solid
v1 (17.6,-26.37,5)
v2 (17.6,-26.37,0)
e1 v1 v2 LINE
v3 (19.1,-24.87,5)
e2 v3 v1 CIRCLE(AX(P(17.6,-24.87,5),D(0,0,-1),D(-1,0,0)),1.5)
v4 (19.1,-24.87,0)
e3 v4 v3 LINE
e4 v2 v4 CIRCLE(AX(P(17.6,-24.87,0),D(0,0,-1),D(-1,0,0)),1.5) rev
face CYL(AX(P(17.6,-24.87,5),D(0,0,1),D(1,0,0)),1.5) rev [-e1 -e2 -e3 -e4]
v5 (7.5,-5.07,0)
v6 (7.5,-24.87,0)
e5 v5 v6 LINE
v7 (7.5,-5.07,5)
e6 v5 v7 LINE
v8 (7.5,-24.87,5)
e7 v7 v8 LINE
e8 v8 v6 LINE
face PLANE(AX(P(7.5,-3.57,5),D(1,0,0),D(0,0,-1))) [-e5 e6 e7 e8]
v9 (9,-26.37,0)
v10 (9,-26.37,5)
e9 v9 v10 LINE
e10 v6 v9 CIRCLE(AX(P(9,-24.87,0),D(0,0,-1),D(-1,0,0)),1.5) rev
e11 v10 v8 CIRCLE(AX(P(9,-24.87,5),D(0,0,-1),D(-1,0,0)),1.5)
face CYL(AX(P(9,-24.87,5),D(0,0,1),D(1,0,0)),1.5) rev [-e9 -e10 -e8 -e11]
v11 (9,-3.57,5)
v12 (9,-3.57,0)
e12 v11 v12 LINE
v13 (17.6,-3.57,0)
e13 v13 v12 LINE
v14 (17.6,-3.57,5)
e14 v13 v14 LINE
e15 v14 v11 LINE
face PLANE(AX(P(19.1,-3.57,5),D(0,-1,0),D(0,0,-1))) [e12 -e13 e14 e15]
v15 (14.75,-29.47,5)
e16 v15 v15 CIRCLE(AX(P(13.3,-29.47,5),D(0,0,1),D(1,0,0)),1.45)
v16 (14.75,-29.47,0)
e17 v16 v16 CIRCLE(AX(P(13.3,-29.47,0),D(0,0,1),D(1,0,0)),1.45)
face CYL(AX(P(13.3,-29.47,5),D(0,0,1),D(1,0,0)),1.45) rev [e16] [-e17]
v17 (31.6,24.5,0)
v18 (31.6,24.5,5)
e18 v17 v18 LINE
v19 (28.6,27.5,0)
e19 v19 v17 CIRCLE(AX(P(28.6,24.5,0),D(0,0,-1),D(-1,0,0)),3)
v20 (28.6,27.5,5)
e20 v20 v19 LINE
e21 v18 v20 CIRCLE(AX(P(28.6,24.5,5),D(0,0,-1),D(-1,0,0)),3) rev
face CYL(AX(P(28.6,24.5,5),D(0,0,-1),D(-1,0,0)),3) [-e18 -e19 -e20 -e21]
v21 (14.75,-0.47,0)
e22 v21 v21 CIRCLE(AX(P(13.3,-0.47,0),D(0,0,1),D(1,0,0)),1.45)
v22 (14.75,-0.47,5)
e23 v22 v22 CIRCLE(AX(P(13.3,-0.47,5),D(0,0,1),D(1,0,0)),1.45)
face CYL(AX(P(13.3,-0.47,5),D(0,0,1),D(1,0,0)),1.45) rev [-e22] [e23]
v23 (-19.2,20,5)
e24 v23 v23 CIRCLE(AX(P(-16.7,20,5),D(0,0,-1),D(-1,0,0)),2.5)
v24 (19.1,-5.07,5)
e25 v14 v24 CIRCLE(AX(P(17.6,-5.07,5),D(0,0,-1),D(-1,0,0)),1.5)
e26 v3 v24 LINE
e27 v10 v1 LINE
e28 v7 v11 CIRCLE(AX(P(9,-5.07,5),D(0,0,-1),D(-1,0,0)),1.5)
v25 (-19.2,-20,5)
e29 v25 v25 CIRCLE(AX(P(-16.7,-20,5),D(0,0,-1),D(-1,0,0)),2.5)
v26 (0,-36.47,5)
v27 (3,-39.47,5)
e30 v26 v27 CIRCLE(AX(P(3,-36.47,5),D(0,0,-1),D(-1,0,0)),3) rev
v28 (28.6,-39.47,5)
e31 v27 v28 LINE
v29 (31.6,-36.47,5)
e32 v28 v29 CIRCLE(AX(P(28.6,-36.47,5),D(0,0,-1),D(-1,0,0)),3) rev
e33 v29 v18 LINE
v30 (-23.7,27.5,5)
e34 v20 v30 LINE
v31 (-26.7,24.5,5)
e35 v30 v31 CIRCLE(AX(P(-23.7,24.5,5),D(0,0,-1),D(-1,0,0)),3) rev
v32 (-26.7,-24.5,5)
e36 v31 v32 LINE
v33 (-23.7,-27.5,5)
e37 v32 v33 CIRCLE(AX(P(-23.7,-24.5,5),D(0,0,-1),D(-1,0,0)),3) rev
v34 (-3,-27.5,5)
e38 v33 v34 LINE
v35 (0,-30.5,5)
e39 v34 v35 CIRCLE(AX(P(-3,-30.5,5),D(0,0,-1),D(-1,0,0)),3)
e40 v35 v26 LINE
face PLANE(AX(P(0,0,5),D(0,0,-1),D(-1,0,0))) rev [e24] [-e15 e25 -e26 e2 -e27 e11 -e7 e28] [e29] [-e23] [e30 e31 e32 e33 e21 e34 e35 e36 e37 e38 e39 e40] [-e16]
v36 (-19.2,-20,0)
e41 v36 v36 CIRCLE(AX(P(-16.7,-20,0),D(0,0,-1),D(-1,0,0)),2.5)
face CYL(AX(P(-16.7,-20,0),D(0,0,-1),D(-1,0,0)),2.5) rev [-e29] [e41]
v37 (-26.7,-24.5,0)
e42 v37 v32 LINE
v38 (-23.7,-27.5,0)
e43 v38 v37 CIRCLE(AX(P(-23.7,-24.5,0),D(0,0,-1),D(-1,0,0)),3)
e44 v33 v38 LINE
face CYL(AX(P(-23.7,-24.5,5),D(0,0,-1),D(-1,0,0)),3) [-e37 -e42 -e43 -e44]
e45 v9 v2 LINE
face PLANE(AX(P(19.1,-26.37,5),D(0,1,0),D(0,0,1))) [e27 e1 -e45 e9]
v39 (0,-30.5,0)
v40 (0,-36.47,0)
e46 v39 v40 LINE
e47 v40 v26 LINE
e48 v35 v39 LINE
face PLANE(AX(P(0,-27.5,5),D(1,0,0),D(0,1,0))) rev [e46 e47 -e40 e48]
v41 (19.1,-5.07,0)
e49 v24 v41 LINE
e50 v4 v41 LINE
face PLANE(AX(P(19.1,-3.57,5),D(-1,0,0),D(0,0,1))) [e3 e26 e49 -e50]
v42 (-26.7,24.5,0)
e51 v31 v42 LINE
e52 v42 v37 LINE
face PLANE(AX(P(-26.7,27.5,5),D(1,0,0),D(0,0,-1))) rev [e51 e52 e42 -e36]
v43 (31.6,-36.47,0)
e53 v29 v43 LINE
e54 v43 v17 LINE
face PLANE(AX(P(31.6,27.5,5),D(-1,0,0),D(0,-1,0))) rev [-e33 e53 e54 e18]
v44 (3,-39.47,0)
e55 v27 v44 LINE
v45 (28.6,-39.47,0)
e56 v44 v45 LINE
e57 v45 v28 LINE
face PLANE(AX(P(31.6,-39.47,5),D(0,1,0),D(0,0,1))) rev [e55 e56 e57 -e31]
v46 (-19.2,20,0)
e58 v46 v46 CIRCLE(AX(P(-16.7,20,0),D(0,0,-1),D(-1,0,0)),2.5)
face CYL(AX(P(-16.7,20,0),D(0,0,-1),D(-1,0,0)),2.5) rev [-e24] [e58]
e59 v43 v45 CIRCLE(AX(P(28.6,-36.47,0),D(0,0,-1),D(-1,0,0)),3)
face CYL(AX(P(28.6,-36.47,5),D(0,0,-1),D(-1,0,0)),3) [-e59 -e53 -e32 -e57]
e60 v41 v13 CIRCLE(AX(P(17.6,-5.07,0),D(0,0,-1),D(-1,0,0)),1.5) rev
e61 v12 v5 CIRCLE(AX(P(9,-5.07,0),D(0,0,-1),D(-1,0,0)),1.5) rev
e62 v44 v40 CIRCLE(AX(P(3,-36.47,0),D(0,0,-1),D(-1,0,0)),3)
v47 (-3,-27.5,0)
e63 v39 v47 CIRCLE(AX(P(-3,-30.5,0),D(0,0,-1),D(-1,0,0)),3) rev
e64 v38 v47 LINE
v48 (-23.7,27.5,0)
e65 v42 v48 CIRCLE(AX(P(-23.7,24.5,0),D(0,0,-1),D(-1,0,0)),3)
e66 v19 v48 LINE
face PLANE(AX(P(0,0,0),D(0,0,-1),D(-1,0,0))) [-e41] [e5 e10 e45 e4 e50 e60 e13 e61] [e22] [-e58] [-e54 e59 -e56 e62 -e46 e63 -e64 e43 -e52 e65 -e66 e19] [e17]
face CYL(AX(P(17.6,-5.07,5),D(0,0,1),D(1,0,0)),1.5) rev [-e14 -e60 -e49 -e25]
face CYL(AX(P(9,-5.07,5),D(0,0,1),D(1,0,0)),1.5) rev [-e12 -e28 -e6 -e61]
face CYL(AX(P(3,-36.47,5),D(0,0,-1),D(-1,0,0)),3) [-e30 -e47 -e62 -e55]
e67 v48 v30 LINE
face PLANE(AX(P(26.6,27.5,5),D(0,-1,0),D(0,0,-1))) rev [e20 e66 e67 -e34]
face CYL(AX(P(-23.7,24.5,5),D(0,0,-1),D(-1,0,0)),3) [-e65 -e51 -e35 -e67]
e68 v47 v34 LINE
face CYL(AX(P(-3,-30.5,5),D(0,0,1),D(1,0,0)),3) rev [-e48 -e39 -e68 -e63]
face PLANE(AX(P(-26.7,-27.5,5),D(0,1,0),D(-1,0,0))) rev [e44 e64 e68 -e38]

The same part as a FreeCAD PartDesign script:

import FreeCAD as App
import Part
import Sketcher

V = App.Vector
Q = App.Units.Quantity


def edges_at(feature, points):
    """Names of the edges that pass closest to the given points."""
    edges = feature.Shape.Edges
    near = lambda p: min(range(len(edges)), key=lambda i: edges[i].distToShape(Part.Vertex(*p))[0])
    return sorted({f"Edge{near(p) + 1}" for p in points})

doc = App.newDocument("Part")
params = doc.addObject("Spreadsheet::Sheet", "Params")
for row, (alias, value) in enumerate([
    ("sketch1_height", "55 mm"),
    ("sketch1_width", "26.7 mm"),
    ("sketch1_width2", "31.6 mm"),
    ("sketch1_width3", "11.6 mm"),
    ("sketch1_height2", "22.8 mm"),
    ("pad1_length", "5 mm"),
    ("sketch2_diameter", "5 mm"),
    ("hole_diameter", "5 mm"),
    ("sketch3_diameter", "2.9 mm"),
    ("hole2_diameter", "2.9 mm"),
    ("fillet_radius", "3 mm"),
    ("fillet2_radius", "1.5 mm"),
], start=1):
    params.set(f"A{row}", alias)
    params.set(f"B{row}", "=" + value)
    params.setAlias(f"B{row}", alias)

body = doc.addObject("PartDesign::Body", "Body")

# Sketch on XY plane
sketch1 = doc.addObject("Sketcher::SketchObject", "Sketch")
body.addObject(sketch1)
sketch1.AttachmentSupport = (doc.XY_Plane, [""])
sketch1.MapMode = "FlatFace"
sketch1.addGeometry(Part.LineSegment(V(-27, 28, 0), V(-27, -28, 0)), False)
sketch1.addGeometry(Part.LineSegment(V(-27, -28, 0), V(0, -28, 0)), False)
sketch1.addGeometry(Part.LineSegment(V(0, -28, 0), V(0, -39, 0)), False)
sketch1.addGeometry(Part.LineSegment(V(0, -39, 0), V(32, -39, 0)), False)
sketch1.addGeometry(Part.LineSegment(V(32, -39, 0), V(32, 28, 0)), False)
sketch1.addGeometry(Part.LineSegment(V(32, 28, 0), V(-27, 28, 0)), False)
sketch1.addGeometry(Part.LineSegment(V(19, -26, 0), V(8, -26, 0)), False)
sketch1.addGeometry(Part.LineSegment(V(8, -26, 0), V(8, -4, 0)), False)
sketch1.addGeometry(Part.LineSegment(V(8, -4, 0), V(19, -4, 0)), False)
sketch1.addGeometry(Part.LineSegment(V(19, -4, 0), V(19, -26, 0)), False)
sketch1.addConstraint(Sketcher.Constraint("Coincident", 0, 2, 1, 1))
sketch1.addConstraint(Sketcher.Constraint("Coincident", 1, 2, 2, 1))
sketch1.addConstraint(Sketcher.Constraint("Coincident", 2, 2, 3, 1))
sketch1.addConstraint(Sketcher.Constraint("Coincident", 3, 2, 4, 1))
sketch1.addConstraint(Sketcher.Constraint("Coincident", 4, 2, 5, 1))
sketch1.addConstraint(Sketcher.Constraint("Coincident", 5, 2, 0, 1))
sketch1.addConstraint(Sketcher.Constraint("Coincident", 6, 2, 7, 1))
sketch1.addConstraint(Sketcher.Constraint("Coincident", 7, 2, 8, 1))
sketch1.addConstraint(Sketcher.Constraint("Coincident", 8, 2, 9, 1))
sketch1.addConstraint(Sketcher.Constraint("Coincident", 9, 2, 6, 1))
sketch1.addConstraint(Sketcher.Constraint("Vertical", 0))
sketch1.addConstraint(Sketcher.Constraint("Horizontal", 1))
sketch1.addConstraint(Sketcher.Constraint("Vertical", 2))
sketch1.addConstraint(Sketcher.Constraint("Horizontal", 3))
sketch1.addConstraint(Sketcher.Constraint("Vertical", 4))
sketch1.addConstraint(Sketcher.Constraint("Horizontal", 5))
sketch1.addConstraint(Sketcher.Constraint("Horizontal", 6))
sketch1.addConstraint(Sketcher.Constraint("Vertical", 7))
sketch1.addConstraint(Sketcher.Constraint("Horizontal", 8))
sketch1.addConstraint(Sketcher.Constraint("Vertical", 9))
sketch1.addConstraint(Sketcher.Constraint("PointOnObject", 1, 2, -2))
sketch1.addConstraint(Sketcher.Constraint("DistanceY", 0, 2, 0, 1, Q("55 mm")))
sketch1.addConstraint(Sketcher.Constraint("DistanceX", 1, 1, 1, 2, Q("26.7 mm")))
sketch1.addConstraint(Sketcher.Constraint("DistanceX", 3, 1, 3, 2, Q("31.6 mm")))
sketch1.addConstraint(Sketcher.Constraint("DistanceX", 6, 2, 6, 1, Q("11.6 mm")))
sketch1.addConstraint(Sketcher.Constraint("DistanceY", 7, 1, 7, 2, Q("22.8 mm")))
sketch1.addConstraint(Sketcher.Constraint("DistanceY", 2, 2, 2, 1, Q("11.97 mm")))
sketch1.addConstraint(Sketcher.Constraint("DistanceY", 0, 2, -1, 1, Q("27.5 mm")))
sketch1.addConstraint(Sketcher.Constraint("DistanceX", -1, 1, 6, 2, Q("7.5 mm")))
sketch1.addConstraint(Sketcher.Constraint("DistanceY", 2, 2, 6, 2, Q("13.1 mm")))
sketch1.setExpression("Constraints[21]", "Params.sketch1_height")
sketch1.setExpression("Constraints[22]", "Params.sketch1_width")
sketch1.setExpression("Constraints[23]", "Params.sketch1_width2")
sketch1.setExpression("Constraints[24]", "Params.sketch1_width3")
sketch1.setExpression("Constraints[25]", "Params.sketch1_height2")
pad1 = doc.addObject("PartDesign::Pad", "Pad")
body.addObject(pad1)
pad1.Profile = sketch1
pad1.setExpression("Length", "Params.pad1_length")

# Sketch on XY plane
sketch2 = doc.addObject("Sketcher::SketchObject", "Sketch001")
body.addObject(sketch2)
sketch2.AttachmentSupport = (doc.XY_Plane, [""])
sketch2.MapMode = "FlatFace"
sketch2.addGeometry(Part.Circle(V(-16.7, -20, 0), V(0, 0, 1), 2.5), False)
sketch2.addGeometry(Part.Circle(V(-16.7, 20, 0), V(0, 0, 1), 2.5), False)
sketch2.addConstraint(Sketcher.Constraint("Equal", 0, 1))
sketch2.addConstraint(Sketcher.Constraint("Symmetric", 0, 3, 1, 3, -1))
sketch2.addConstraint(Sketcher.Constraint("Diameter", 0, Q("5 mm")))
sketch2.addConstraint(Sketcher.Constraint("DistanceY", 0, 3, -1, 1, Q("20 mm")))
sketch2.addConstraint(Sketcher.Constraint("DistanceX", 0, 3, -1, 1, Q("16.7 mm")))
sketch2.setExpression("Constraints[2]", "Params.sketch2_diameter")
doc.recompute()
hole = doc.addObject("PartDesign::Hole", "Hole")
body.addObject(hole)
hole.Profile = sketch2
hole.ThreadType = "None"
hole.setExpression("Diameter", "Params.hole_diameter")
hole.DepthType = "ThroughAll"
hole.Reversed = True

# Sketch on XY plane
sketch3 = doc.addObject("Sketcher::SketchObject", "Sketch002")
body.addObject(sketch3)
sketch3.AttachmentSupport = (doc.XY_Plane, [""])
sketch3.MapMode = "FlatFace"
sketch3.AttachmentOffset = App.Placement(V(0, 0, 5), App.Rotation())
sketch3.addGeometry(Part.Circle(V(13.3, -0.5, 0), V(0, 0, 1), 1.4), False)
sketch3.addGeometry(Part.Circle(V(13.3, -29.5, 0), V(0, 0, 1), 1.4), False)
sketch3.addConstraint(Sketcher.Constraint("Equal", 0, 1))
sketch3.addConstraint(Sketcher.Constraint("Vertical", 0, 3, 1, 3))
sketch3.addConstraint(Sketcher.Constraint("Diameter", 0, Q("2.9 mm")))
sketch3.addConstraint(Sketcher.Constraint("DistanceY", 1, 3, 0, 3, Q("29 mm")))
sketch3.addConstraint(Sketcher.Constraint("DistanceX", -1, 1, 0, 3, Q("13.3 mm")))
sketch3.addConstraint(Sketcher.Constraint("DistanceY", 0, 3, -1, 1, Q("0.47 mm")))
sketch3.setExpression("Constraints[2]", "Params.sketch3_diameter")
doc.recompute()
hole2 = doc.addObject("PartDesign::Hole", "Hole001")
body.addObject(hole2)
hole2.Profile = sketch3
hole2.ThreadType = "None"
hole2.setExpression("Diameter", "Params.hole2_diameter")
hole2.DepthType = "ThroughAll"
doc.recompute()

fillet = doc.addObject("PartDesign::Fillet", "Fillet")
body.addObject(fillet)
fillet.Base = (hole2, edges_at(hole2, [
    (31.6, 27.5, 2.5),
    (31.6, -39.47, 2.5),
    (0, -39.47, 2.5),
    (0, -27.5, 2.5),
    (-26.7, -27.5, 2.5),
    (-26.7, 27.5, 2.5),
]))
fillet.setExpression("Radius", "Params.fillet_radius")
doc.recompute()

fillet2 = doc.addObject("PartDesign::Fillet", "Fillet001")
body.addObject(fillet2)
fillet2.Base = (fillet, edges_at(fillet, [
    (19.1, -26.37, 2.5),
    (19.1, -3.57, 2.5),
    (7.5, -3.57, 2.5),
    (7.5, -26.37, 2.5),
]))
fillet2.setExpression("Radius", "Params.fillet2_radius")

doc.recompute()
